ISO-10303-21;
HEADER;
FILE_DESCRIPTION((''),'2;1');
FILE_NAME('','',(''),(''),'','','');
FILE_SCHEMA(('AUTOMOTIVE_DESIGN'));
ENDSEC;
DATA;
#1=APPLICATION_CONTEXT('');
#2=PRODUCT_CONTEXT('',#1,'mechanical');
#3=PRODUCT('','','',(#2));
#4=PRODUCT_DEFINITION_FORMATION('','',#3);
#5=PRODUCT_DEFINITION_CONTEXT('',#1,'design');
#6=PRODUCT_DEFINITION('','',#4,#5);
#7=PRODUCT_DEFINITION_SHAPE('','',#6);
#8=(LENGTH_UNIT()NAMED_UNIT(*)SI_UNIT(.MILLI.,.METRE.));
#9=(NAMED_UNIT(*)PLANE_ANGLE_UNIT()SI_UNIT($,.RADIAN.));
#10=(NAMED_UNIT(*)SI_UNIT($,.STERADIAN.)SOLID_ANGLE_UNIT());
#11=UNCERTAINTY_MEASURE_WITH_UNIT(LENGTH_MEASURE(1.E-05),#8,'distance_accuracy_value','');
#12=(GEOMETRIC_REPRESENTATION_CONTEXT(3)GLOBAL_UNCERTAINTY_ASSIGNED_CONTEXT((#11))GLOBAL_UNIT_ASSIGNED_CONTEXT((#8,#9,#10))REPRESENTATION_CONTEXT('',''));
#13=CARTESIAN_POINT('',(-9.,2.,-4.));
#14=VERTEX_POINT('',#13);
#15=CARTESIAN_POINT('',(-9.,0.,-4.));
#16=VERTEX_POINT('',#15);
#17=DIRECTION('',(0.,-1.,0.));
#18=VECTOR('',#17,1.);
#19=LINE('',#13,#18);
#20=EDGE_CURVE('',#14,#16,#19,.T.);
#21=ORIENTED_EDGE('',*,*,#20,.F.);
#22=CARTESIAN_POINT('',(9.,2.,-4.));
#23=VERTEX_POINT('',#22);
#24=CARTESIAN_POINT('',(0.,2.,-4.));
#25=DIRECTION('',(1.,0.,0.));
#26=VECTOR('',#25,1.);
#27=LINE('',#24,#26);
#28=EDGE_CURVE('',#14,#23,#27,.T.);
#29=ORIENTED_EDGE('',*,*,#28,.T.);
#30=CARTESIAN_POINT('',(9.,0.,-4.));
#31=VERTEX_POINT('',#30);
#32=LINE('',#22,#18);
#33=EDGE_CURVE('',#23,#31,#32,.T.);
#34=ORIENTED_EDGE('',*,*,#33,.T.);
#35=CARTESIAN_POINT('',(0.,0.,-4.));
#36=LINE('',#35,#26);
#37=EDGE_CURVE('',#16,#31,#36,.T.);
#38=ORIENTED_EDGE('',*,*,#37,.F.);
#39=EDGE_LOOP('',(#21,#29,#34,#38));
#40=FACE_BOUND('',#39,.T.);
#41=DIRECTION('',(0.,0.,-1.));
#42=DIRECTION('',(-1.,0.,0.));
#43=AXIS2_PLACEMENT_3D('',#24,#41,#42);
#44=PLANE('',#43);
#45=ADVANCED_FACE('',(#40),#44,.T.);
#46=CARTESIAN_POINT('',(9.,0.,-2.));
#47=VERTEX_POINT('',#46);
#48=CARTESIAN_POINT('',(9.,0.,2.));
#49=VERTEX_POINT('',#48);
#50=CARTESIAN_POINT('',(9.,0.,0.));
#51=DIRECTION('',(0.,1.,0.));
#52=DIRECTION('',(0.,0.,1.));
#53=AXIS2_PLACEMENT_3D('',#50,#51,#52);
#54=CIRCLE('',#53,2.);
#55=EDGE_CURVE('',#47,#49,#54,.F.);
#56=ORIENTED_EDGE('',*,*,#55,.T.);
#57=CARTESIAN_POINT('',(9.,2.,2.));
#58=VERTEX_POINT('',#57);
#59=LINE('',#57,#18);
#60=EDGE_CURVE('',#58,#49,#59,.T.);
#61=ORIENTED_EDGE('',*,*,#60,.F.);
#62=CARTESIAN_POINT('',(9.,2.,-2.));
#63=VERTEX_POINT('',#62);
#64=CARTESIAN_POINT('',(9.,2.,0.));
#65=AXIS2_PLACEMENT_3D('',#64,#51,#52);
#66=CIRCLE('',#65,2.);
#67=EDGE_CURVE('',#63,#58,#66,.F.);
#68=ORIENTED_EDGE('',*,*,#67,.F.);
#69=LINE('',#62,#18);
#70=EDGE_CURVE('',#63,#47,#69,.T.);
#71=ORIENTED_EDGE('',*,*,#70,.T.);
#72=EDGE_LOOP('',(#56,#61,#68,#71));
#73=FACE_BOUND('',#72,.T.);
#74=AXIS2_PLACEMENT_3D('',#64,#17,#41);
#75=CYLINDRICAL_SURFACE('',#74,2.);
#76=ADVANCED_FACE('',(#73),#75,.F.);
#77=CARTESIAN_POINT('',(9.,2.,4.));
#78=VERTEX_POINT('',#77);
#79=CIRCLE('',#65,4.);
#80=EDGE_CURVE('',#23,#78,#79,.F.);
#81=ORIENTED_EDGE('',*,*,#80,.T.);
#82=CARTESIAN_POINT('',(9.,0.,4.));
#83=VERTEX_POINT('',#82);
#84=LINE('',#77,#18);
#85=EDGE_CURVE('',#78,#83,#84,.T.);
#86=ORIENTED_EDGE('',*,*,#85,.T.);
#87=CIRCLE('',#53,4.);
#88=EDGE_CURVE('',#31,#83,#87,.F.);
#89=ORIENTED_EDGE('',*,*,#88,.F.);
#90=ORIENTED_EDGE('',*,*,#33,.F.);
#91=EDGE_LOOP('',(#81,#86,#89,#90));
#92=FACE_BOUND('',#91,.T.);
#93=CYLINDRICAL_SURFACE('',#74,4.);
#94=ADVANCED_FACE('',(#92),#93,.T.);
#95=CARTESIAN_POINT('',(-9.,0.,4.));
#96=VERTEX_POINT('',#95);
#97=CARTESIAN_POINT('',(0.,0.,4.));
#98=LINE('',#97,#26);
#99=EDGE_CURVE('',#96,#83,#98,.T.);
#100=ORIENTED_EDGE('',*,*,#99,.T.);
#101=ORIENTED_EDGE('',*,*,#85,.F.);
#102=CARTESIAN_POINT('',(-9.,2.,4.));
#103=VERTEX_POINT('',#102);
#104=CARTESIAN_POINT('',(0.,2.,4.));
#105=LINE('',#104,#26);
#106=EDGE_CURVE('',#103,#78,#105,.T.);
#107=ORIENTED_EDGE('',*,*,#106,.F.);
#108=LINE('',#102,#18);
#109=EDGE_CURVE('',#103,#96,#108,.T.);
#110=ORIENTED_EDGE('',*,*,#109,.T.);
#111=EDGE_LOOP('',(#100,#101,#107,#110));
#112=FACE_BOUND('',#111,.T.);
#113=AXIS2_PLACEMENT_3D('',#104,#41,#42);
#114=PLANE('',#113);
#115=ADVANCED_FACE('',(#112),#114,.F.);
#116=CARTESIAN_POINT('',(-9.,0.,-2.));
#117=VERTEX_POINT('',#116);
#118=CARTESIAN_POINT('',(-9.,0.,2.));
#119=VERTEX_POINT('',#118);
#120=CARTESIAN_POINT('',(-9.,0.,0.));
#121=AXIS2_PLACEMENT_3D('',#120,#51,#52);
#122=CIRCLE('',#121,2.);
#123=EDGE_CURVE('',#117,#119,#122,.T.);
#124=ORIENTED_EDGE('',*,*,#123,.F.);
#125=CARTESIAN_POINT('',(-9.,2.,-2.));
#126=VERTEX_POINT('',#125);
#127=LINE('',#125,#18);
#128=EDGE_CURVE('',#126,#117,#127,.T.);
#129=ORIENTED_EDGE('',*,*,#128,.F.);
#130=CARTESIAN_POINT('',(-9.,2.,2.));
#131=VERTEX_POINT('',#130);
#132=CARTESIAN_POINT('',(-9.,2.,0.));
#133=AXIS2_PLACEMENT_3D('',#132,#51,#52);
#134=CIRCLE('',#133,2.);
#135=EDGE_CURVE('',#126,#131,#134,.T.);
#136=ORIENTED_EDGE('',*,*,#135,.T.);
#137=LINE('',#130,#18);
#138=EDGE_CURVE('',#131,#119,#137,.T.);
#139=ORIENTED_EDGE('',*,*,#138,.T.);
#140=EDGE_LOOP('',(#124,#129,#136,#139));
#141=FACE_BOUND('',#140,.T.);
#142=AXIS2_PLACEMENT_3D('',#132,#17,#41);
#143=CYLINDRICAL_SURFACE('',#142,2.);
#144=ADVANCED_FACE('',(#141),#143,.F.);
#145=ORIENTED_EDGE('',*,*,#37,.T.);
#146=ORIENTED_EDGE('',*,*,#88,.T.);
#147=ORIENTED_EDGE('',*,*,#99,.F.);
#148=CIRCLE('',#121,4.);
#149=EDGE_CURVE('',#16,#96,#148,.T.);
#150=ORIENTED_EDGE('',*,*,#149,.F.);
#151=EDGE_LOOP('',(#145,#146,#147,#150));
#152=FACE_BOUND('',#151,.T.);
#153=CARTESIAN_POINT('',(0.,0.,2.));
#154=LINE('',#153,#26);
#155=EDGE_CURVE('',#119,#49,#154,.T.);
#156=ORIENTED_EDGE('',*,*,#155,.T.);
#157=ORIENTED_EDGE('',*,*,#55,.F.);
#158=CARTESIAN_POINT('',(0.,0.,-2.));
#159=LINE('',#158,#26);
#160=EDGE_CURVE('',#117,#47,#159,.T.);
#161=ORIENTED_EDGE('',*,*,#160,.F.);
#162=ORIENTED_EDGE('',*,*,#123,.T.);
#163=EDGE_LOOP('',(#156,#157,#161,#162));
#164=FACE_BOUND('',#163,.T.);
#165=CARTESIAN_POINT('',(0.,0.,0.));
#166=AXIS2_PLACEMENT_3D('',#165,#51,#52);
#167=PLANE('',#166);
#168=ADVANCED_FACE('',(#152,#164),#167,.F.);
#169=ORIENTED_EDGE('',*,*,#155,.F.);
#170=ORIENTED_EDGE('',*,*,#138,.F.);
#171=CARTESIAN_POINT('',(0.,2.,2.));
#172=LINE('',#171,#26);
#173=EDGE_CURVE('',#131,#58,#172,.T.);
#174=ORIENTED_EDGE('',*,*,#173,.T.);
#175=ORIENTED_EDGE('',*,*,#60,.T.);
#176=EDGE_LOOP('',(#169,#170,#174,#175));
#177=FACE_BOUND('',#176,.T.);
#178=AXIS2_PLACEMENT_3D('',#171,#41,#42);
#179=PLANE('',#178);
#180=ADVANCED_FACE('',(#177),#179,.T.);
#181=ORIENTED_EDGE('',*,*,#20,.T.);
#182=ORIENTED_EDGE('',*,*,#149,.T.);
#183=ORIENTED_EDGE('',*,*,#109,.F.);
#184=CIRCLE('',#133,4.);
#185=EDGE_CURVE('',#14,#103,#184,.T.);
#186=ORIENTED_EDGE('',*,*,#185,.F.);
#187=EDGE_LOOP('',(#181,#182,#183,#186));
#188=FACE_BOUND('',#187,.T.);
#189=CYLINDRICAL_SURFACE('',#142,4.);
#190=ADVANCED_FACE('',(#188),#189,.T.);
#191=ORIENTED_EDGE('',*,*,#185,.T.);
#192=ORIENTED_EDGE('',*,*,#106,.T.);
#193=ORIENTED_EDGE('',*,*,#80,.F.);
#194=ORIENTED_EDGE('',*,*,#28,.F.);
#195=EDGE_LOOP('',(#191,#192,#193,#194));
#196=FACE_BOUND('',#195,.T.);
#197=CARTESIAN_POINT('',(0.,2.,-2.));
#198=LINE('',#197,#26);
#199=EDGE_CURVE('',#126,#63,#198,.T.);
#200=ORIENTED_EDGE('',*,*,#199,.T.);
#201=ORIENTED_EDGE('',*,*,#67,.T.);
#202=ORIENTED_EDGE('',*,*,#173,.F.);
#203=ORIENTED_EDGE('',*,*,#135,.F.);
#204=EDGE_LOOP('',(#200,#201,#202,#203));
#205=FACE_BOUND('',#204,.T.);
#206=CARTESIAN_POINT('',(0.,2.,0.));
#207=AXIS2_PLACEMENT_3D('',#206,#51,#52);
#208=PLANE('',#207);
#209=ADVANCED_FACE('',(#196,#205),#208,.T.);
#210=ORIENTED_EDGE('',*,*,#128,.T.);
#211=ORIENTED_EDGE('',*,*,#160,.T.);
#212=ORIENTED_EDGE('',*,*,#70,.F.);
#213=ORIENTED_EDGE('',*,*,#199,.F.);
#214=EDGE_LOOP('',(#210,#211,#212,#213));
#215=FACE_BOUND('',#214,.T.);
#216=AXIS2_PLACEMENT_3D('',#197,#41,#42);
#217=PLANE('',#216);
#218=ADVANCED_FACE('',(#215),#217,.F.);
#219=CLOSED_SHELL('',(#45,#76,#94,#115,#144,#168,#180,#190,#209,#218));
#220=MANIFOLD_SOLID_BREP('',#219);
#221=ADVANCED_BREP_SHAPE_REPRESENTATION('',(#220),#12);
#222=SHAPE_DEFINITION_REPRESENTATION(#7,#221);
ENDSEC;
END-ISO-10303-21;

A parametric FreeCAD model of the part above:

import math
import FreeCAD as App
import Part
import Sketcher

V = App.Vector
Q = App.Units.Quantity

doc = App.newDocument("Part")
params = doc.addObject("Spreadsheet::Sheet", "Params")
for row, (alias, value) in enumerate([
    ("sketch1_radius", "4 mm"),
    ("sketch1_radius2", "2 mm"),
    ("sketch1_width", "18 mm"),
    ("pad1_length", "2 mm"),
], start=1):
    params.set(f"A{row}", alias)
    params.set(f"B{row}", "=" + value)
    params.setAlias(f"B{row}", alias)

body = doc.addObject("PartDesign::Body", "Body")

# Sketch on XZ plane
sketch1 = body.newObject("Sketcher::SketchObject", "Sketch")
sketch1.AttachmentSupport = (doc.getObject("XZ_Plane"), [""])
sketch1.MapMode = "FlatFace"
sketch1.addGeometry(Part.ArcOfCircle(Part.Circle(V(9, 0, 0), V(0, 0, 1), 4), math.radians(-90), math.radians(90)), False)
sketch1.addGeometry(Part.LineSegment(V(9, -4, 0), V(-9, -4, 0)), False)
sketch1.addGeometry(Part.ArcOfCircle(Part.Circle(V(-9, 0, 0), V(0, 0, 1), 4), math.radians(90), math.radians(270)), False)
sketch1.addGeometry(Part.LineSegment(V(-9, 4, 0), V(9, 4, 0)), False)
sketch1.addGeometry(Part.ArcOfCircle(Part.Circle(V(-9, 0, 0), V(0, 0, 1), 2), math.radians(90), math.radians(270)), False)
sketch1.addGeometry(Part.LineSegment(V(-9, -2, 0), V(9, -2, 0)), False)
sketch1.addGeometry(Part.ArcOfCircle(Part.Circle(V(9, 0, 0), V(0, 0, 1), 2), math.radians(-90), math.radians(90)), False)
sketch1.addGeometry(Part.LineSegment(V(9, 2, 0), V(-9, 2, 0)), False)
sketch1.addConstraint(Sketcher.Constraint("Tangent", 0, 1, 1, 1))
sketch1.addConstraint(Sketcher.Constraint("Tangent", 1, 2, 2, 2))
sketch1.addConstraint(Sketcher.Constraint("Tangent", 2, 1, 3, 1))
sketch1.addConstraint(Sketcher.Constraint("Tangent", 3, 2, 0, 2))
sketch1.addConstraint(Sketcher.Constraint("Tangent", 4, 2, 5, 1))
sketch1.addConstraint(Sketcher.Constraint("Tangent", 5, 2, 6, 1))
sketch1.addConstraint(Sketcher.Constraint("Tangent", 6, 2, 7, 1))
sketch1.addConstraint(Sketcher.Constraint("Tangent", 7, 2, 4, 1))
sketch1.addConstraint(Sketcher.Constraint("Horizontal", 1))
sketch1.addConstraint(Sketcher.Constraint("Horizontal", 3))
sketch1.addConstraint(Sketcher.Constraint("Horizontal", 5))
sketch1.addConstraint(Sketcher.Constraint("Horizontal", 7))
sketch1.addConstraint(Sketcher.Constraint("Coincident", 4, 3, 2, 3))
sketch1.addConstraint(Sketcher.Constraint("Symmetric", 0, 3, 2, 3, -1, 1))
sketch1.addConstraint(Sketcher.Constraint("Vertical", 6, 3, 0, 1))
sketch1.addConstraint(Sketcher.Constraint("Radius", 0, Q("4 mm")))
sketch1.addConstraint(Sketcher.Constraint("Radius", 4, Q("2 mm")))
sketch1.addConstraint(Sketcher.Constraint("DistanceX", 1, 2, 1, 1, Q("18 mm")))
sketch1.setExpression("Constraints[15]", "Params.sketch1_radius")
sketch1.setExpression("Constraints[16]", "Params.sketch1_radius2")
sketch1.setExpression("Constraints[17]", "Params.sketch1_width")
pad1 = body.newObject("PartDesign::Pad", "Pad")
pad1.Profile = sketch1
pad1.setExpression("Length", "Params.pad1_length")
pad1.Reversed = True

doc.recompute()
